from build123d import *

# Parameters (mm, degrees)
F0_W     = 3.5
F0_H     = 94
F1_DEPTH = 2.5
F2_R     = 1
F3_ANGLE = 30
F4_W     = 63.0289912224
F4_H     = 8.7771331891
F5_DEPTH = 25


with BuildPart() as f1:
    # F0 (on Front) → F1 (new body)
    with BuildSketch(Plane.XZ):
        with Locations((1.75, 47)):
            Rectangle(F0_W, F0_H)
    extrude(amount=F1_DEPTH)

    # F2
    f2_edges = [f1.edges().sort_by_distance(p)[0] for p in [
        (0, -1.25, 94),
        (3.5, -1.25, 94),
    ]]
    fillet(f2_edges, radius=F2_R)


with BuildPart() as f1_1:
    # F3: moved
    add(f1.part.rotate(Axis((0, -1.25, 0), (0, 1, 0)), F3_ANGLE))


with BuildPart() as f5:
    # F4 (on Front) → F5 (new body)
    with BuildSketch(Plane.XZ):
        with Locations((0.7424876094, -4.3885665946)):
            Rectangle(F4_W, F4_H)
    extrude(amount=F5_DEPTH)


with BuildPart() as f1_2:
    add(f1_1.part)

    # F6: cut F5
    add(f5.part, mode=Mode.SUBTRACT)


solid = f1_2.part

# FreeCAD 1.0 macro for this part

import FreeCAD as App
import Part
import Sketcher
from FreeCAD import Vector


def edges_at(feature, points):
    """Names of the edges that pass closest to the given points."""
    edges = feature.Shape.Edges
    near = lambda p: min(range(len(edges)), key=lambda i: edges[i].distToShape(Part.Vertex(*p))[0])
    return sorted({f"Edge{near(p) + 1}" for p in points})


def add_polygon(sketch, points):
    """Adds a closed chain of lines whose ends are joined by coincident constraints."""
    first, n = sketch.GeometryCount, len(points)
    for a, b in zip(points, points[1:] + points[:1]):
        sketch.addGeometry(Part.LineSegment(App.Vector(*a, 0), App.Vector(*b, 0)), False)
    for i in range(n):
        sketch.addConstraint(Sketcher.Constraint("Coincident", first + i, 2, first + (i + 1) % n, 1))

doc = App.newDocument("Part")
body = doc.addObject("PartDesign::Body", "Body")

# Sketch on XZ plane
sketch1 = doc.addObject("Sketcher::SketchObject", "Sketch")
body.addObject(sketch1)
sketch1.AttachmentSupport = (doc.XZ_Plane, [""])
sketch1.MapMode = "FlatFace"
add_polygon(sketch1, [(0, 94), (0, 0), (3.5, 0), (3.5, 94)])  # lines 0-3
sketch1.addConstraint(Sketcher.Constraint("Vertical", 0))
sketch1.addConstraint(Sketcher.Constraint("Horizontal", 1))
sketch1.addConstraint(Sketcher.Constraint("Vertical", 2))
sketch1.addConstraint(Sketcher.Constraint("Horizontal", 3))
sketch1.addConstraint(Sketcher.Constraint("Coincident", 0, 2, -1, 1))
sketch1.addConstraint(Sketcher.Constraint("DistanceY", 0, 2, 0, 1, 94.0))
sketch1.addConstraint(Sketcher.Constraint("DistanceX", 1, 1, 1, 2, 3.5))
pad1 = doc.addObject("PartDesign::Pad", "Pad")
body.addObject(pad1)
pad1.Profile = sketch1
pad1.Length = 2.5
doc.recompute()

fillet = doc.addObject("PartDesign::Fillet", "Fillet")
body.addObject(fillet)
fillet.Base = (pad1, edges_at(pad1, [(0, -1.25, 94), (3.5, -1.25, 94)]))
fillet.Radius = 1
body2 = doc.addObject("PartDesign::Body", "Body001")
doc.recompute()

body.Placement = App.Placement(Vector(0, 0, 0), App.Rotation(Vector(0, 1, 0), 30))
boolean = doc.addObject("PartDesign::Boolean", "Boolean")
body2.addObject(boolean)
boolean.Type = "Fuse"
boolean.addObjects([body])
body3 = doc.addObject("PartDesign::Body", "Body002")

# Sketch on XZ plane
sketch2 = doc.addObject("Sketcher::SketchObject", "Sketch001")
body3.addObject(sketch2)
sketch2.AttachmentSupport = (doc.getObject("XZ_Plane002"), [""])
sketch2.MapMode = "FlatFace"
add_polygon(sketch2, [(-31, 0), (-31, -9), (32, -9), (32, 0)])  # lines 0-3
sketch2.addConstraint(Sketcher.Constraint("Vertical", 0))
sketch2.addConstraint(Sketcher.Constraint("Horizontal", 1))
sketch2.addConstraint(Sketcher.Constraint("Vertical", 2))
sketch2.addConstraint(Sketcher.Constraint("Horizontal", 3))
sketch2.addConstraint(Sketcher.Constraint("PointOnObject", 2, 2, -1))
sketch2.addConstraint(Sketcher.Constraint("DistanceX", 1, 1, 1, 2, 63.028991))
sketch2.addConstraint(Sketcher.Constraint("DistanceY", 0, 2, 0, 1, 8.777133))
sketch2.addConstraint(Sketcher.Constraint("DistanceX", 0, 2, -1, 1, 30.772008))
pad2 = doc.addObject("PartDesign::Pad", "Pad001")
body3.addObject(pad2)
pad2.Profile = sketch2
pad2.Length = 25
doc.recompute()

boolean2 = doc.addObject("PartDesign::Boolean", "Boolean001")
body2.addObject(boolean2)
boolean2.Type = "Cut"
boolean2.addObjects([body3])

doc.recompute()
